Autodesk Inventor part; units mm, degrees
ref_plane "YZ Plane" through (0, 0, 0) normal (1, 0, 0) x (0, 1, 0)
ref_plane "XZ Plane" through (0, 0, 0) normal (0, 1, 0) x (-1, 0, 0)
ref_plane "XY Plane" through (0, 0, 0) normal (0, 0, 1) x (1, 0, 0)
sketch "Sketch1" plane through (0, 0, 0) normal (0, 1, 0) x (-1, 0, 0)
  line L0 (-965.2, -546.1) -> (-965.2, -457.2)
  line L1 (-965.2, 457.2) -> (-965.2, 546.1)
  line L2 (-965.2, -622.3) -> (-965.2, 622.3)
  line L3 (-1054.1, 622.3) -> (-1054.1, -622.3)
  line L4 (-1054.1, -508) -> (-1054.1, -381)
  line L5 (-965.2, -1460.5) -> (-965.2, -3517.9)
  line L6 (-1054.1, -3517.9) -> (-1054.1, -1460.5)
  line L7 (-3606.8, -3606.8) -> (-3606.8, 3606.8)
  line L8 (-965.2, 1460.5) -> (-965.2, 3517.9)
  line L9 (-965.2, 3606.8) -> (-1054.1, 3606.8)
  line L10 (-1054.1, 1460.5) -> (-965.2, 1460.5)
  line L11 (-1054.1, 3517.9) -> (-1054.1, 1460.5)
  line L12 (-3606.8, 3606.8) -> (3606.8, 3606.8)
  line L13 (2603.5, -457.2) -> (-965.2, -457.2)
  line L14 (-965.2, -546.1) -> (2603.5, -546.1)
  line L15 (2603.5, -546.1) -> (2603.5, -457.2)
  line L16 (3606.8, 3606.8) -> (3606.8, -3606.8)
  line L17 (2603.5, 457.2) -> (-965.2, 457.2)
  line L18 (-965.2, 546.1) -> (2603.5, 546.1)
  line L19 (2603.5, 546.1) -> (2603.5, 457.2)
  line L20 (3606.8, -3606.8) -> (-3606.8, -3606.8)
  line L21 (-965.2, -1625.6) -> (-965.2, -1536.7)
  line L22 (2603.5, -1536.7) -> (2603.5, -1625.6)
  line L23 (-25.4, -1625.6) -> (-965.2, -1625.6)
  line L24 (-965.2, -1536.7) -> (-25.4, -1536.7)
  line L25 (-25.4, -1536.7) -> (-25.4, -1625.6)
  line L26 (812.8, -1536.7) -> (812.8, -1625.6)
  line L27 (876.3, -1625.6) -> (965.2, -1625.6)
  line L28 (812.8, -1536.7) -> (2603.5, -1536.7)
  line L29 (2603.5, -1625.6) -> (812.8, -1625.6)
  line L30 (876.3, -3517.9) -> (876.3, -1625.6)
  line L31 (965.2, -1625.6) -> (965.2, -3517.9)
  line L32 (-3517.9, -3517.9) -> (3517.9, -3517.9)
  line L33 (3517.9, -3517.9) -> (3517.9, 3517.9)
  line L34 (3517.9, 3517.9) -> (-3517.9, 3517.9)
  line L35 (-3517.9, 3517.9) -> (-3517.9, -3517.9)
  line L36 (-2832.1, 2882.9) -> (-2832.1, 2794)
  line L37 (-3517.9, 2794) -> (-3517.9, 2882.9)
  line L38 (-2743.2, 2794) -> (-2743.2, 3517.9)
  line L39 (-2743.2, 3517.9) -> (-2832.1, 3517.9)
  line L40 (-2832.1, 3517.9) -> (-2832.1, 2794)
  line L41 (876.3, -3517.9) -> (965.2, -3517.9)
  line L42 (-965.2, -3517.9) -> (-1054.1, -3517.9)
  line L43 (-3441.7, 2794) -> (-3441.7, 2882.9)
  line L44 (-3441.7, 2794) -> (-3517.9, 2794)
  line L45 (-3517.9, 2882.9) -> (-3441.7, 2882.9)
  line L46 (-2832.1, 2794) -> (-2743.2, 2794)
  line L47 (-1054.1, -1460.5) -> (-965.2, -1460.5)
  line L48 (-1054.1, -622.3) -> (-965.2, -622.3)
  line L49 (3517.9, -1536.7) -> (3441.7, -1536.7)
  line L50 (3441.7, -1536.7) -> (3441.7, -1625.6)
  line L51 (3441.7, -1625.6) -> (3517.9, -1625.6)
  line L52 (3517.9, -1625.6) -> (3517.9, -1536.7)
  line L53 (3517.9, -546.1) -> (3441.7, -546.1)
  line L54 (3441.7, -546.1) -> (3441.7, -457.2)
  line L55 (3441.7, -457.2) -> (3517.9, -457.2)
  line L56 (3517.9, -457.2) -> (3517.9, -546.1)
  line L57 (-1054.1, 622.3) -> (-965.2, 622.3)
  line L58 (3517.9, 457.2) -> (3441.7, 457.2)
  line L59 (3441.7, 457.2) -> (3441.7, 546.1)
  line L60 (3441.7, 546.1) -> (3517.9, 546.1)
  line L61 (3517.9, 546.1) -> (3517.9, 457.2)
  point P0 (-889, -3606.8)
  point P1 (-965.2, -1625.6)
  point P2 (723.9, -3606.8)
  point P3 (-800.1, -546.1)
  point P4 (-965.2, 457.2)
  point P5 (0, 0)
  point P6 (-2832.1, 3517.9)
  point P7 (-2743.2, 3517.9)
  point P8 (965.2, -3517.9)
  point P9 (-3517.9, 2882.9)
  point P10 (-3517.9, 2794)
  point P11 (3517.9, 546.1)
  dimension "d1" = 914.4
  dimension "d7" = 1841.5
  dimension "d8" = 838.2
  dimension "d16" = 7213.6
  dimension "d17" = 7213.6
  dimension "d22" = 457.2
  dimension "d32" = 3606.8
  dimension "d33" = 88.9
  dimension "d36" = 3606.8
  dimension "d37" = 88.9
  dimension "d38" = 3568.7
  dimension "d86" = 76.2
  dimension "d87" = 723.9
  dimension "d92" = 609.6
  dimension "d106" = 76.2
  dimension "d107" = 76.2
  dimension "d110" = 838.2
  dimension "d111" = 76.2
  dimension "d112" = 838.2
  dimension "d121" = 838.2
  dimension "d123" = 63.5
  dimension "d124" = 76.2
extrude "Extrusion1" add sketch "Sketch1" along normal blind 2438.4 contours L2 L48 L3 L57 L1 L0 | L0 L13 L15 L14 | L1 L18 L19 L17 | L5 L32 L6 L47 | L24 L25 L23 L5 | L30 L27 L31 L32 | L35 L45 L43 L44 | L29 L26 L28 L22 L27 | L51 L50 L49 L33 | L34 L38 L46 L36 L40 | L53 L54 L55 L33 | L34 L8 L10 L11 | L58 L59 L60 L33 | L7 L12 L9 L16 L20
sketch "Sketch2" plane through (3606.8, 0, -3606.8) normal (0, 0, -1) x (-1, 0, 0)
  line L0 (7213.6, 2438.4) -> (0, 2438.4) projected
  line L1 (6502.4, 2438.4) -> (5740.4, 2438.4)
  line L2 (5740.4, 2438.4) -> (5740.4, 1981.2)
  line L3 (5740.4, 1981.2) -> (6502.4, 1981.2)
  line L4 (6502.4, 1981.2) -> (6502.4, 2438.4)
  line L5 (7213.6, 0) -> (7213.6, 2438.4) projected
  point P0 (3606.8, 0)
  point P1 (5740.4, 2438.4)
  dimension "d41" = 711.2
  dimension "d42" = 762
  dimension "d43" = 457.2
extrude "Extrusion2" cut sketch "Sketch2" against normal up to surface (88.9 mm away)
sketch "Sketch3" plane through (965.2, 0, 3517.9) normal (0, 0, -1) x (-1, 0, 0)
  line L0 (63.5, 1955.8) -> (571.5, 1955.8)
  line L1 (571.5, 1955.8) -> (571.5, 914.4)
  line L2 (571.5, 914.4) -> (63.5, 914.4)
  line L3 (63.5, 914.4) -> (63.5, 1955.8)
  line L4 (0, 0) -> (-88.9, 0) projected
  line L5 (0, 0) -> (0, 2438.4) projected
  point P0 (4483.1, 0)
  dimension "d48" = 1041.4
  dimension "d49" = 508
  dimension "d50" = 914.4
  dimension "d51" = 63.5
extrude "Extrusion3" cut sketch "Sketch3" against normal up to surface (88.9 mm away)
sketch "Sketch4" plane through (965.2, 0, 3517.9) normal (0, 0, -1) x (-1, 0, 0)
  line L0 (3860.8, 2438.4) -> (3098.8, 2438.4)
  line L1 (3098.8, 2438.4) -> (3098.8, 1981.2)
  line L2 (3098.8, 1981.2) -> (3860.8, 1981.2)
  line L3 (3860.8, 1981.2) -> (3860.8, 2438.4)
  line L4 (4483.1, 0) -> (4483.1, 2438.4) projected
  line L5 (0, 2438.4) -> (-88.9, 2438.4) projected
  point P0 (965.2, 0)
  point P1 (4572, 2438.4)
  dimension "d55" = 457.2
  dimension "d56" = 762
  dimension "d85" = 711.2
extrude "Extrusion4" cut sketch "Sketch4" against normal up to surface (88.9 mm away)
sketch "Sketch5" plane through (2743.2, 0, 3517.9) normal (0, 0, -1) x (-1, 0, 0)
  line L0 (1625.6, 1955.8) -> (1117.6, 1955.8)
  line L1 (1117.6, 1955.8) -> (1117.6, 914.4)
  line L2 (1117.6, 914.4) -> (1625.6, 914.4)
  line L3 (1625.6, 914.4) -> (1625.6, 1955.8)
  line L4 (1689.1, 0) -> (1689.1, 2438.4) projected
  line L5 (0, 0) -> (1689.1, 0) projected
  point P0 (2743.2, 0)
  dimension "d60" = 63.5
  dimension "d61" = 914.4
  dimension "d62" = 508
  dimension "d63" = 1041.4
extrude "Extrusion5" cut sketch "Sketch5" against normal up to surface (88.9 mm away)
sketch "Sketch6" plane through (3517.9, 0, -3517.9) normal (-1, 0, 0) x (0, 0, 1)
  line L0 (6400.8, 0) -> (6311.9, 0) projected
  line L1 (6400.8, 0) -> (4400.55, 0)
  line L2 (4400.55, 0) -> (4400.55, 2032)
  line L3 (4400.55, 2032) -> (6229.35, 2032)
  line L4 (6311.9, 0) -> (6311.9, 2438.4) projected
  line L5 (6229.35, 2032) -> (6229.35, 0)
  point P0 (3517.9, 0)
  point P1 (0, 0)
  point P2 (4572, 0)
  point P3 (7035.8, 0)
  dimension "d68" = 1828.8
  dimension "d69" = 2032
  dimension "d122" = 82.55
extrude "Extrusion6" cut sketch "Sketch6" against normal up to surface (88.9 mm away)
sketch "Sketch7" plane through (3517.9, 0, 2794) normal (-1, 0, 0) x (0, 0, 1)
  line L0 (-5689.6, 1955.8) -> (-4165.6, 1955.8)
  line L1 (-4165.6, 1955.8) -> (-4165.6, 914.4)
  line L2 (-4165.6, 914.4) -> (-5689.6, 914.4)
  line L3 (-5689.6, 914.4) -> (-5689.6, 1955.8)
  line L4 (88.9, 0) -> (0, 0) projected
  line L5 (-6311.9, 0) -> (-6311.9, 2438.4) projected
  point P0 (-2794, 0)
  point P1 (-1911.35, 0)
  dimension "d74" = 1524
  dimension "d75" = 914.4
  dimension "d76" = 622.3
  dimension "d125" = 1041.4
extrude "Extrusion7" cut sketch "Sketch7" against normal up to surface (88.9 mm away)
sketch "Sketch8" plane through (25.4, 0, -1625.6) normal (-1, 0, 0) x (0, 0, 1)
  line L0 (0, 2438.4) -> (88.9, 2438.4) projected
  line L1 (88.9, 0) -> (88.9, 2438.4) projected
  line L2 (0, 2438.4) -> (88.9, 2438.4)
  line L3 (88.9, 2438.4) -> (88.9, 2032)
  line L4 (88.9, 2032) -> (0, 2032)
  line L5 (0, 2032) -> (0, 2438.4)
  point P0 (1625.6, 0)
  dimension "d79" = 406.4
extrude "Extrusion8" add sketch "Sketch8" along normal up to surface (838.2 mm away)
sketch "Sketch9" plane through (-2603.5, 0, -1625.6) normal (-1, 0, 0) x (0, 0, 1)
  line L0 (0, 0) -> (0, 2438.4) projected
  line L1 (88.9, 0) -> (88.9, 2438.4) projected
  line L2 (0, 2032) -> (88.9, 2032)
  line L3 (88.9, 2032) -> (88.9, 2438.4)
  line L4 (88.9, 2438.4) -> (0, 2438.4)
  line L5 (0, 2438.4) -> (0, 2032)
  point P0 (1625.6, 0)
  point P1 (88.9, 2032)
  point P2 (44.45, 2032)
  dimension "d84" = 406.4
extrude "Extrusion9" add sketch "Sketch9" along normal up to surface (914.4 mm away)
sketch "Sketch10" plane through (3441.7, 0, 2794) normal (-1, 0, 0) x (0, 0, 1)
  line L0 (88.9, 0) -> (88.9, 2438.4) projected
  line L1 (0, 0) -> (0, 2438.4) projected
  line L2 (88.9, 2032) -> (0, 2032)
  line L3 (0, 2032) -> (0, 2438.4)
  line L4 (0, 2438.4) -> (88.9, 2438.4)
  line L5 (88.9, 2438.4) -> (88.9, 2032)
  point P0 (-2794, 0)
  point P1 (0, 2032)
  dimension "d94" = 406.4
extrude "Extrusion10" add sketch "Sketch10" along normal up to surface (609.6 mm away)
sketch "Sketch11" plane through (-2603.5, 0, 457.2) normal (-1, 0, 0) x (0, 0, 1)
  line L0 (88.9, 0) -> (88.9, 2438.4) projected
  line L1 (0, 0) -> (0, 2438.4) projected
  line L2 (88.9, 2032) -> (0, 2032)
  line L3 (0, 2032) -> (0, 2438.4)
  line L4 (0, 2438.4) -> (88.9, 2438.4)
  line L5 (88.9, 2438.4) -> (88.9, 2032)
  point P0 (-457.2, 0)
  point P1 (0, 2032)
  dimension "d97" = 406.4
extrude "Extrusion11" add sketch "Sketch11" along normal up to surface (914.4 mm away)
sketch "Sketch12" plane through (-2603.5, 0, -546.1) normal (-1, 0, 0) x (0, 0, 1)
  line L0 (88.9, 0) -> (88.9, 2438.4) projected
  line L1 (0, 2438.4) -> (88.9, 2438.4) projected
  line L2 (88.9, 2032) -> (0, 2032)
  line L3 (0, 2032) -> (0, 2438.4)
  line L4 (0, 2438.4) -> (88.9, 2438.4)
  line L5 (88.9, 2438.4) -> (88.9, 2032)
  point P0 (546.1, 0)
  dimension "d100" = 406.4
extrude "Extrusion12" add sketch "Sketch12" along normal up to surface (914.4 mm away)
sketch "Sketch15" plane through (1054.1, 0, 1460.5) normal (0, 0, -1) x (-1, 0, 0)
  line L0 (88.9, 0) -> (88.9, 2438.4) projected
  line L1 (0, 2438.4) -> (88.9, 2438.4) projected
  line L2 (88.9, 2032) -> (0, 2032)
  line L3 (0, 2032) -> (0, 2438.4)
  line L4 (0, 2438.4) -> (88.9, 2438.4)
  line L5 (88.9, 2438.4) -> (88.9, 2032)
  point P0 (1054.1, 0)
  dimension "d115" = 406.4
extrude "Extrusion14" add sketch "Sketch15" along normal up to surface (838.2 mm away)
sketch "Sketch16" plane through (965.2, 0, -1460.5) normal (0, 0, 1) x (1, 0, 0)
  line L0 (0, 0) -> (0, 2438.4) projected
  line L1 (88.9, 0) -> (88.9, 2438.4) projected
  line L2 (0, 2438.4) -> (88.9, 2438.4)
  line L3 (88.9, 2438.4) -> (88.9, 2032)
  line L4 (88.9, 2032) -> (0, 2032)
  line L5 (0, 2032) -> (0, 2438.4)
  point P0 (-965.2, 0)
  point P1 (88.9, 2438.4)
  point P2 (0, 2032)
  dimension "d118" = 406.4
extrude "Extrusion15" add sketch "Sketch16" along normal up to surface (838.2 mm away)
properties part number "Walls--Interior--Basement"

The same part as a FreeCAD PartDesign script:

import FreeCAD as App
import Part
import Sketcher

V = App.Vector
Q = App.Units.Quantity

doc = App.newDocument("Part")
body = doc.addObject("PartDesign::Body", "Body")
body.AllowCompound = True

sketch1 = body.newObject("Sketcher::SketchObject", "Sketch")
sketch1.AttachmentSupport = (doc.getObject("XZ_Plane"), [""])
sketch1.MapMode = "FlatFace"
sketch1.addGeometry(Part.LineSegment(V(965.2, -622.3, 0), V(965.2, -546.1, 0)), False)
sketch1.addGeometry(Part.LineSegment(V(965.2, -546.1, 0), V(-2603.5, -546.1, 0)), False)
sketch1.addGeometry(Part.LineSegment(V(-2603.5, -546.1, 0), V(-2603.5, -457.2, 0)), False)
sketch1.addGeometry(Part.LineSegment(V(-2603.5, -457.2, 0), V(965.2, -457.2, 0)), False)
sketch1.addGeometry(Part.LineSegment(V(965.2, -457.2, 0), V(965.2, 457.2, 0)), False)
sketch1.addGeometry(Part.LineSegment(V(965.2, 457.2, 0), V(-2603.5, 457.2, 0)), False)
sketch1.addGeometry(Part.LineSegment(V(-2603.5, 457.2, 0), V(-2603.5, 546.1, 0)), False)
sketch1.addGeometry(Part.LineSegment(V(-2603.5, 546.1, 0), V(965.2, 546.1, 0)), False)
sketch1.addGeometry(Part.LineSegment(V(965.2, 546.1, 0), V(965.2, 622.3, 0)), False)
sketch1.addGeometry(Part.LineSegment(V(965.2, 622.3, 0), V(1054.1, 622.3, 0)), False)
sketch1.addGeometry(Part.LineSegment(V(1054.1, 622.3, 0), V(1054.1, -622.3, 0)), False)
sketch1.addGeometry(Part.LineSegment(V(1054.1, -622.3, 0), V(965.2, -622.3, 0)), False)
sketch1.addGeometry(Part.LineSegment(V(3606.8, 3606.8, 0), V(3606.8, -3606.8, 0)), False)
sketch1.addGeometry(Part.LineSegment(V(3606.8, -3606.8, 0), V(-3606.8, -3606.8, 0)), False)
sketch1.addGeometry(Part.LineSegment(V(-3606.8, -3606.8, 0), V(-3606.8, 3606.8, 0)), False)
sketch1.addGeometry(Part.LineSegment(V(-3606.8, 3606.8, 0), V(3606.8, 3606.8, 0)), False)
sketch1.addGeometry(Part.LineSegment(V(965.2, -1536.7, 0), V(965.2, -1460.5, 0)), False)
sketch1.addGeometry(Part.LineSegment(V(965.2, -1460.5, 0), V(1054.1, -1460.5, 0)), False)
sketch1.addGeometry(Part.LineSegment(V(1054.1, -1460.5, 0), V(1054.1, -3517.9, 0)), False)
sketch1.addGeometry(Part.LineSegment(V(1054.1, -3517.9, 0), V(3517.9, -3517.9, 0)), False)
sketch1.addGeometry(Part.LineSegment(V(3517.9, -3517.9, 0), V(3517.9, 2794, 0)), False)
sketch1.addGeometry(Part.LineSegment(V(3517.9, 2794, 0), V(3441.7, 2794, 0)), False)
sketch1.addGeometry(Part.LineSegment(V(3441.7, 2794, 0), V(3441.7, 2882.9, 0)), False)
sketch1.addGeometry(Part.LineSegment(V(3441.7, 2882.9, 0), V(3517.9, 2882.9, 0)), False)
sketch1.addGeometry(Part.LineSegment(V(3517.9, 2882.9, 0), V(3517.9, 3517.9, 0)), False)
sketch1.addGeometry(Part.LineSegment(V(3517.9, 3517.9, 0), V(2832.1, 3517.9, 0)), False)
sketch1.addGeometry(Part.LineSegment(V(2832.1, 3517.9, 0), V(2832.1, 2794, 0)), False)
sketch1.addGeometry(Part.LineSegment(V(2832.1, 2794, 0), V(2743.2, 2794, 0)), False)
sketch1.addGeometry(Part.LineSegment(V(2743.2, 2794, 0), V(2743.2, 3517.9, 0)), False)
sketch1.addGeometry(Part.LineSegment(V(2743.2, 3517.9, 0), V(1054.1, 3517.9, 0)), False)
sketch1.addGeometry(Part.LineSegment(V(1054.1, 3517.9, 0), V(1054.1, 1460.5, 0)), False)
sketch1.addGeometry(Part.LineSegment(V(1054.1, 1460.5, 0), V(965.2, 1460.5, 0)), False)
sketch1.addGeometry(Part.LineSegment(V(965.2, 1460.5, 0), V(965.2, 3517.9, 0)), False)
sketch1.addGeometry(Part.LineSegment(V(965.2, 3517.9, 0), V(-3517.9, 3517.9, 0)), False)
sketch1.addGeometry(Part.LineSegment(V(-3517.9, 3517.9, 0), V(-3517.9, 546.1, 0)), False)
sketch1.addGeometry(Part.LineSegment(V(-3517.9, 546.1, 0), V(-3441.7, 546.1, 0)), False)
sketch1.addGeometry(Part.LineSegment(V(-3441.7, 546.1, 0), V(-3441.7, 457.2, 0)), False)
sketch1.addGeometry(Part.LineSegment(V(-3441.7, 457.2, 0), V(-3517.9, 457.2, 0)), False)
sketch1.addGeometry(Part.LineSegment(V(-3517.9, 457.2, 0), V(-3517.9, -457.2, 0)), False)
sketch1.addGeometry(Part.LineSegment(V(-3517.9, -457.2, 0), V(-3441.7, -457.2, 0)), False)
sketch1.addGeometry(Part.LineSegment(V(-3441.7, -457.2, 0), V(-3441.7, -546.1, 0)), False)
sketch1.addGeometry(Part.LineSegment(V(-3441.7, -546.1, 0), V(-3517.9, -546.1, 0)), False)
sketch1.addGeometry(Part.LineSegment(V(-3517.9, -546.1, 0), V(-3517.9, -1536.7, 0)), False)
sketch1.addGeometry(Part.LineSegment(V(-3517.9, -1536.7, 0), V(-3441.7, -1536.7, 0)), False)
sketch1.addGeometry(Part.LineSegment(V(-3441.7, -1536.7, 0), V(-3441.7, -1625.6, 0)), False)
sketch1.addGeometry(Part.LineSegment(V(-3441.7, -1625.6, 0), V(-3517.9, -1625.6, 0)), False)
sketch1.addGeometry(Part.LineSegment(V(-3517.9, -1625.6, 0), V(-3517.9, -3517.9, 0)), False)
sketch1.addGeometry(Part.LineSegment(V(-3517.9, -3517.9, 0), V(-965.2, -3517.9, 0)), False)
sketch1.addGeometry(Part.LineSegment(V(-965.2, -3517.9, 0), V(-965.2, -1625.6, 0)), False)
sketch1.addGeometry(Part.LineSegment(V(-965.2, -1625.6, 0), V(-2603.5, -1625.6, 0)), False)
sketch1.addGeometry(Part.LineSegment(V(-2603.5, -1625.6, 0), V(-2603.5, -1536.7, 0)), False)
sketch1.addGeometry(Part.LineSegment(V(-2603.5, -1536.7, 0), V(-812.8, -1536.7, 0)), False)
sketch1.addGeometry(Part.LineSegment(V(-812.8, -1536.7, 0), V(-812.8, -1625.6, 0)), False)
sketch1.addGeometry(Part.LineSegment(V(-812.8, -1625.6, 0), V(-876.3, -1625.6, 0)), False)
sketch1.addGeometry(Part.LineSegment(V(-876.3, -1625.6, 0), V(-876.3, -3517.9, 0)), False)
sketch1.addGeometry(Part.LineSegment(V(-876.3, -3517.9, 0), V(965.2, -3517.9, 0)), False)
sketch1.addGeometry(Part.LineSegment(V(965.2, -3517.9, 0), V(965.2, -1625.6, 0)), False)
sketch1.addGeometry(Part.LineSegment(V(965.2, -1625.6, 0), V(25.4, -1625.6, 0)), False)
sketch1.addGeometry(Part.LineSegment(V(25.4, -1625.6, 0), V(25.4, -1536.7, 0)), False)
sketch1.addGeometry(Part.LineSegment(V(25.4, -1536.7, 0), V(965.2, -1536.7, 0)), False)
sketch1.addConstraint(Sketcher.Constraint("Coincident", 0, 2, 1, 1))
sketch1.addConstraint(Sketcher.Constraint("Coincident", 1, 2, 2, 1))
sketch1.addConstraint(Sketcher.Constraint("Coincident", 2, 2, 3, 1))
sketch1.addConstraint(Sketcher.Constraint("Coincident", 3, 2, 4, 1))
sketch1.addConstraint(Sketcher.Constraint("Coincident", 4, 2, 5, 1))
sketch1.addConstraint(Sketcher.Constraint("Coincident", 5, 2, 6, 1))
sketch1.addConstraint(Sketcher.Constraint("Coincident", 6, 2, 7, 1))
sketch1.addConstraint(Sketcher.Constraint("Coincident", 7, 2, 8, 1))
sketch1.addConstraint(Sketcher.Constraint("Coincident", 8, 2, 9, 1))
sketch1.addConstraint(Sketcher.Constraint("Coincident", 9, 2, 10, 1))
sketch1.addConstraint(Sketcher.Constraint("Coincident", 10, 2, 11, 1))
sketch1.addConstraint(Sketcher.Constraint("Coincident", 11, 2, 0, 1))
sketch1.addConstraint(Sketcher.Constraint("Coincident", 12, 2, 13, 1))
sketch1.addConstraint(Sketcher.Constraint("Coincident", 13, 2, 14, 1))
sketch1.addConstraint(Sketcher.Constraint("Coincident", 14, 2, 15, 1))
sketch1.addConstraint(Sketcher.Constraint("Coincident", 15, 2, 12, 1))
sketch1.addConstraint(Sketcher.Constraint("Coincident", 16, 2, 17, 1))
sketch1.addConstraint(Sketcher.Constraint("Coincident", 17, 2, 18, 1))
sketch1.addConstraint(Sketcher.Constraint("Coincident", 18, 2, 19, 1))
sketch1.addConstraint(Sketcher.Constraint("Coincident", 19, 2, 20, 1))
sketch1.addConstraint(Sketcher.Constraint("Coincident", 20, 2, 21, 1))
sketch1.addConstraint(Sketcher.Constraint("Coincident", 21, 2, 22, 1))
sketch1.addConstraint(Sketcher.Constraint("Coincident", 22, 2, 23, 1))
sketch1.addConstraint(Sketcher.Constraint("Coincident", 23, 2, 24, 1))
sketch1.addConstraint(Sketcher.Constraint("Coincident", 24, 2, 25, 1))
sketch1.addConstraint(Sketcher.Constraint("Coincident", 25, 2, 26, 1))
sketch1.addConstraint(Sketcher.Constraint("Coincident", 26, 2, 27, 1))
sketch1.addConstraint(Sketcher.Constraint("Coincident", 27, 2, 28, 1))
sketch1.addConstraint(Sketcher.Constraint("Coincident", 28, 2, 29, 1))
sketch1.addConstraint(Sketcher.Constraint("Coincident", 29, 2, 30, 1))
sketch1.addConstraint(Sketcher.Constraint("Coincident", 30, 2, 31, 1))
sketch1.addConstraint(Sketcher.Constraint("Coincident", 31, 2, 32, 1))
sketch1.addConstraint(Sketcher.Constraint("Coincident", 32, 2, 33, 1))
sketch1.addConstraint(Sketcher.Constraint("Coincident", 33, 2, 34, 1))
sketch1.addConstraint(Sketcher.Constraint("Coincident", 34, 2, 35, 1))
sketch1.addConstraint(Sketcher.Constraint("Coincident", 35, 2, 36, 1))
sketch1.addConstraint(Sketcher.Constraint("Coincident", 36, 2, 37, 1))
sketch1.addConstraint(Sketcher.Constraint("Coincident", 37, 2, 38, 1))
sketch1.addConstraint(Sketcher.Constraint("Coincident", 38, 2, 39, 1))
sketch1.addConstraint(Sketcher.Constraint("Coincident", 39, 2, 40, 1))
sketch1.addConstraint(Sketcher.Constraint("Coincident", 40, 2, 41, 1))
sketch1.addConstraint(Sketcher.Constraint("Coincident", 41, 2, 42, 1))
sketch1.addConstraint(Sketcher.Constraint("Coincident", 42, 2, 43, 1))
sketch1.addConstraint(Sketcher.Constraint("Coincident", 43, 2, 44, 1))
sketch1.addConstraint(Sketcher.Constraint("Coincident", 44, 2, 45, 1))
sketch1.addConstraint(Sketcher.Constraint("Coincident", 45, 2, 46, 1))
sketch1.addConstraint(Sketcher.Constraint("Coincident", 46, 2, 47, 1))
sketch1.addConstraint(Sketcher.Constraint("Coincident", 47, 2, 48, 1))
sketch1.addConstraint(Sketcher.Constraint("Coincident", 48, 2, 49, 1))
sketch1.addConstraint(Sketcher.Constraint("Coincident", 49, 2, 50, 1))
sketch1.addConstraint(Sketcher.Constraint("Coincident", 50, 2, 51, 1))
sketch1.addConstraint(Sketcher.Constraint("Coincident", 51, 2, 52, 1))
sketch1.addConstraint(Sketcher.Constraint("Coincident", 52, 2, 53, 1))
sketch1.addConstraint(Sketcher.Constraint("Coincident", 53, 2, 54, 1))
sketch1.addConstraint(Sketcher.Constraint("Coincident", 54, 2, 55, 1))
sketch1.addConstraint(Sketcher.Constraint("Coincident", 55, 2, 56, 1))
sketch1.addConstraint(Sketcher.Constraint("Coincident", 56, 2, 57, 1))
sketch1.addConstraint(Sketcher.Constraint("Coincident", 57, 2, 58, 1))
sketch1.addConstraint(Sketcher.Constraint("Coincident", 58, 2, 59, 1))
sketch1.addConstraint(Sketcher.Constraint("Coincident", 59, 2, 16, 1))
sketch1.addConstraint(Sketcher.Constraint("Vertical", 0))
sketch1.addConstraint(Sketcher.Constraint("Horizontal", 1))
sketch1.addConstraint(Sketcher.Constraint("Vertical", 2))
sketch1.addConstraint(Sketcher.Constraint("Horizontal", 3))
sketch1.addConstraint(Sketcher.Constraint("Vertical", 4))
sketch1.addConstraint(Sketcher.Constraint("Horizontal", 5))
sketch1.addConstraint(Sketcher.Constraint("Vertical", 6))
sketch1.addConstraint(Sketcher.Constraint("Horizontal", 7))
sketch1.addConstraint(Sketcher.Constraint("Vertical", 8))
sketch1.addConstraint(Sketcher.Constraint("Horizontal", 9))
sketch1.addConstraint(Sketcher.Constraint("Vertical", 10))
sketch1.addConstraint(Sketcher.Constraint("Horizontal", 11))
sketch1.addConstraint(Sketcher.Constraint("Vertical", 12))
sketch1.addConstraint(Sketcher.Constraint("Horizontal", 13))
sketch1.addConstraint(Sketcher.Constraint("Vertical", 14))
sketch1.addConstraint(Sketcher.Constraint("Horizontal", 15))
sketch1.addConstraint(Sketcher.Constraint("Vertical", 16))
sketch1.addConstraint(Sketcher.Constraint("Horizontal", 17))
sketch1.addConstraint(Sketcher.Constraint("Vertical", 18))
sketch1.addConstraint(Sketcher.Constraint("Horizontal", 19))
sketch1.addConstraint(Sketcher.Constraint("Vertical", 20))
sketch1.addConstraint(Sketcher.Constraint("Horizontal", 21))
sketch1.addConstraint(Sketcher.Constraint("Vertical", 22))
sketch1.addConstraint(Sketcher.Constraint("Horizontal", 23))
sketch1.addConstraint(Sketcher.Constraint("Vertical", 24))
sketch1.addConstraint(Sketcher.Constraint("Horizontal", 25))
sketch1.addConstraint(Sketcher.Constraint("Vertical", 26))
sketch1.addConstraint(Sketcher.Constraint("Horizontal", 27))
sketch1.addConstraint(Sketcher.Constraint("Vertical", 28))
sketch1.addConstraint(Sketcher.Constraint("Horizontal", 29))
sketch1.addConstraint(Sketcher.Constraint("Vertical", 30))
sketch1.addConstraint(Sketcher.Constraint("Horizontal", 31))
sketch1.addConstraint(Sketcher.Constraint("Vertical", 32))
sketch1.addConstraint(Sketcher.Constraint("Horizontal", 33))
sketch1.addConstraint(Sketcher.Constraint("Vertical", 34))
sketch1.addConstraint(Sketcher.Constraint("Horizontal", 35))
sketch1.addConstraint(Sketcher.Constraint("Vertical", 36))
sketch1.addConstraint(Sketcher.Constraint("Horizontal", 37))
sketch1.addConstraint(Sketcher.Constraint("Vertical", 38))
sketch1.addConstraint(Sketcher.Constraint("Horizontal", 39))
sketch1.addConstraint(Sketcher.Constraint("Vertical", 40))
sketch1.addConstraint(Sketcher.Constraint("Horizontal", 41))
sketch1.addConstraint(Sketcher.Constraint("Vertical", 42))
sketch1.addConstraint(Sketcher.Constraint("Horizontal", 43))
sketch1.addConstraint(Sketcher.Constraint("Vertical", 44))
sketch1.addConstraint(Sketcher.Constraint("Horizontal", 45))
sketch1.addConstraint(Sketcher.Constraint("Vertical", 46))
sketch1.addConstraint(Sketcher.Constraint("Horizontal", 47))
sketch1.addConstraint(Sketcher.Constraint("Vertical", 48))
sketch1.addConstraint(Sketcher.Constraint("Horizontal", 49))
sketch1.addConstraint(Sketcher.Constraint("Vertical", 50))
sketch1.addConstraint(Sketcher.Constraint("Horizontal", 51))
sketch1.addConstraint(Sketcher.Constraint("Vertical", 52))
sketch1.addConstraint(Sketcher.Constraint("Horizontal", 53))
sketch1.addConstraint(Sketcher.Constraint("Vertical", 54))
sketch1.addConstraint(Sketcher.Constraint("Horizontal", 55))
sketch1.addConstraint(Sketcher.Constraint("Vertical", 56))
sketch1.addConstraint(Sketcher.Constraint("Horizontal", 57))
sketch1.addConstraint(Sketcher.Constraint("Vertical", 58))
sketch1.addConstraint(Sketcher.Constraint("Horizontal", 59))
sketch1.addConstraint(Sketcher.Constraint("Symmetric", 12, 2, 14, 2, -1, 1))
sketch1.addConstraint(Sketcher.Constraint("Symmetric", 19, 2, 33, 2, -1, 1))
sketch1.addConstraint(Sketcher.Constraint("Symmetric", 24, 2, 46, 2, -1, 1))
sketch1.addConstraint(Sketcher.Constraint("Symmetric", 32, 2, 47, 2, -1, 1))
sketch1.addConstraint(Sketcher.Constraint("Symmetric", 47, 2, 55, 2, -2))
sketch1.addConstraint(Sketcher.Constraint("Symmetric", 2, 2, 5, 2, -1))
sketch1.addConstraint(Sketcher.Constraint("Symmetric", 0, 2, 7, 2, -1))
sketch1.addConstraint(Sketcher.Constraint("Symmetric", 18, 2, 29, 2, -1))
sketch1.addConstraint(Sketcher.Constraint("Symmetric", 16, 2, 31, 2, -1))
sketch1.addConstraint(Sketcher.Constraint("Symmetric", 36, 2, 39, 2, -1))
sketch1.addConstraint(Sketcher.Constraint("Symmetric", 34, 2, 41, 2, -1))
sketch1.addConstraint(Sketcher.Constraint("Horizontal", 21, 2, 26, 2))
sketch1.addConstraint(Sketcher.Constraint("Horizontal", 7, 2, 34, 2))
sketch1.addConstraint(Sketcher.Constraint("Horizontal", 5, 2, 36, 2))
sketch1.addConstraint(Sketcher.Constraint("Horizontal", 45, 2, 48, 2))
sketch1.addConstraint(Sketcher.Constraint("Horizontal", 43, 2, 50, 2))
sketch1.addConstraint(Sketcher.Constraint("Horizontal", 49, 2, 52, 2))
sketch1.addConstraint(Sketcher.Constraint("Horizontal", 53, 2, 56, 2))
sketch1.addConstraint(Sketcher.Constraint("Horizontal", 51, 2, 58, 2))
sketch1.addConstraint(Sketcher.Constraint("Vertical", 0, 2, 3, 2))
sketch1.addConstraint(Sketcher.Constraint("Vertical", 11, 2, 16, 2))
sketch1.addConstraint(Sketcher.Constraint("Vertical", 10, 2, 17, 2))
sketch1.addConstraint(Sketcher.Constraint("Vertical", 20, 2, 23, 2))
sketch1.addConstraint(Sketcher.Constraint("Vertical", 34, 2, 37, 2))
sketch1.addConstraint(Sketcher.Constraint("Vertical", 40, 2, 43, 2))
sketch1.addConstraint(Sketcher.Constraint("Vertical", 6, 2, 49, 2))
sketch1.addConstraint(Sketcher.Constraint("Equal", 17, 27))
sketch1.addConstraint(Sketcher.Constraint("Equal", 23, 35))
sketch1.addConstraint(Sketcher.Constraint("Equal", 45, 0))
sketch1.addConstraint(Sketcher.Constraint("Equal", 31, 2))
sketch1.addConstraint(Sketcher.Constraint("Equal", 0, 8))
sketch1.addConstraint(Sketcher.Constraint("Equal", 15, 12))
sketch1.addConstraint(Sketcher.Constraint("Equal", 8, 16))
sketch1.addConstraint(Sketcher.Constraint("Equal", 6, 22))
sketch1.addConstraint(Sketcher.Constraint("Equal", 40, 44))
sketch1.addConstraint(Sketcher.Constraint("DistanceX", 13, 2, 13, 1, Q("284 in")))
sketch1.addConstraint(Sketcher.Constraint("DistanceX", 21, 2, 21, 1, Q("3 in")))
sketch1.addConstraint(Sketcher.Constraint("DistanceY", 4, 1, 4, 2, Q("36 in")))
sketch1.addConstraint(Sketcher.Constraint("DistanceX", 1, 2, 1, 1, Q("140.5 in")))
sketch1.addConstraint(Sketcher.Constraint("DistanceX", 9, 1, 9, 2, Q("3.5 in")))
sketch1.addConstraint(Sketcher.Constraint("DistanceX", 53, 2, 53, 1, Q("2.5 in")))
sketch1.addConstraint(Sketcher.Constraint("DistanceX", 55, 1, 55, 2, Q("72.5 in")))
sketch1.addConstraint(Sketcher.Constraint("DistanceY", 26, 2, 26, 1, Q("28.5 in")))
sketch1.addConstraint(Sketcher.Constraint("DistanceY", 16, 2, 11, 2, Q("33 in")))
sketch1.addConstraint(Sketcher.Constraint("DistanceX", 25, 2, 22, 2, Q("24 in")))
sketch1.addConstraint(Sketcher.Constraint("DistanceX", 33, 2, 6, 2, Q("36 in")))
sketch1.addConstraint(Sketcher.Constraint("DistanceX", 52, 2, 57, 2, Q("33 in")))
sketch1.addConstraint(Sketcher.Constraint("DistanceY", 12, 2, 18, 2, Q("3.5 in")))
sketch1.addConstraint(Sketcher.Constraint("DistanceX", 19, 2, 12, 2, Q("3.5 in")))
pad1 = body.newObject("PartDesign::Pad", "Pad")
pad1.Profile = sketch1
pad1.Length = Q("96 in")
pad1.Reversed = True

sketch2 = body.newObject("Sketcher::SketchObject", "Sketch001")
sketch2.AttachmentSupport = (doc.getObject("XY_Plane"), [""])
sketch2.MapMode = "FlatFace"
sketch2.AttachmentOffset = App.Placement(V(0, 0, -142 * 25.4), App.Rotation())
sketch2.addGeometry(Part.LineSegment(V(-2895.6, 1981.2, 0), V(-2895.6, 2438.4, 0)), False)
sketch2.addGeometry(Part.LineSegment(V(-2895.6, 2438.4, 0), V(-2133.6, 2438.4, 0)), False)
sketch2.addGeometry(Part.LineSegment(V(-2133.6, 2438.4, 0), V(-2133.6, 1981.2, 0)), False)
sketch2.addGeometry(Part.LineSegment(V(-2133.6, 1981.2, 0), V(-2895.6, 1981.2, 0)), False)
sketch2.addConstraint(Sketcher.Constraint("Coincident", 0, 2, 1, 1))
sketch2.addConstraint(Sketcher.Constraint("Coincident", 1, 2, 2, 1))
sketch2.addConstraint(Sketcher.Constraint("Coincident", 2, 2, 3, 1))
sketch2.addConstraint(Sketcher.Constraint("Coincident", 3, 2, 0, 1))
sketch2.addConstraint(Sketcher.Constraint("Vertical", 0))
sketch2.addConstraint(Sketcher.Constraint("Horizontal", 1))
sketch2.addConstraint(Sketcher.Constraint("Vertical", 2))
sketch2.addConstraint(Sketcher.Constraint("Horizontal", 3))
sketch2.addConstraint(Sketcher.Constraint("DistanceX", 1, 1, 1, 2, Q("30 in")))
sketch2.addConstraint(Sketcher.Constraint("DistanceY", 0, 1, 0, 2, Q("18 in")))
sketch2.addConstraint(Sketcher.Constraint("DistanceX", 0, 2, -1, 1, Q("114 in")))
sketch2.addConstraint(Sketcher.Constraint("DistanceY", -1, 1, 0, 2, Q("96 in")))
pocket1 = body.newObject("PartDesign::Pocket", "Pocket")
pocket1.Profile = sketch2
pocket1.Length = Q("3.5 in")
pocket1.Reversed = True

sketch3 = body.newObject("Sketcher::SketchObject", "Sketch002")
sketch3.AttachmentSupport = (doc.getObject("XY_Plane"), [""])
sketch3.MapMode = "FlatFace"
sketch3.AttachmentOffset = App.Placement(V(0, 0, 138.5 * 25.4), App.Rotation())
sketch3.addGeometry(Part.LineSegment(V(393.7, 1955.8, 0), V(901.7, 1955.8, 0)), False)
sketch3.addGeometry(Part.LineSegment(V(901.7, 1955.8, 0), V(901.7, 914.4, 0)), False)
sketch3.addGeometry(Part.LineSegment(V(901.7, 914.4, 0), V(393.7, 914.4, 0)), False)
sketch3.addGeometry(Part.LineSegment(V(393.7, 914.4, 0), V(393.7, 1955.8, 0)), False)
sketch3.addConstraint(Sketcher.Constraint("Coincident", 0, 2, 1, 1))
sketch3.addConstraint(Sketcher.Constraint("Coincident", 1, 2, 2, 1))
sketch3.addConstraint(Sketcher.Constraint("Coincident", 2, 2, 3, 1))
sketch3.addConstraint(Sketcher.Constraint("Coincident", 3, 2, 0, 1))
sketch3.addConstraint(Sketcher.Constraint("Horizontal", 0))
sketch3.addConstraint(Sketcher.Constraint("Vertical", 1))
sketch3.addConstraint(Sketcher.Constraint("Horizontal", 2))
sketch3.addConstraint(Sketcher.Constraint("Vertical", 3))
sketch3.addConstraint(Sketcher.Constraint("DistanceX", 0, 1, 0, 2, Q("20 in")))
sketch3.addConstraint(Sketcher.Constraint("DistanceY", 1, 2, 1, 1, Q("41 in")))
sketch3.addConstraint(Sketcher.Constraint("DistanceY", -1, 1, 1, 2, Q("36 in")))
sketch3.addConstraint(Sketcher.Constraint("DistanceX", -1, 1, 0, 2, Q("35.5 in")))
pocket2 = body.newObject("PartDesign::Pocket", "Pocket001")
pocket2.Profile = sketch3
pocket2.Length = Q("3.5 in")
pocket2.Reversed = True

sketch4 = body.newObject("Sketcher::SketchObject", "Sketch003")
sketch4.AttachmentSupport = (doc.getObject("XY_Plane"), [""])
sketch4.MapMode = "FlatFace"
sketch4.AttachmentOffset = App.Placement(V(0, 0, 138.5 * 25.4), App.Rotation())
sketch4.addGeometry(Part.LineSegment(V(-2895.6, 1981.2, 0), V(-2895.6, 2438.4, 0)), False)
sketch4.addGeometry(Part.LineSegment(V(-2895.6, 2438.4, 0), V(-2133.6, 2438.4, 0)), False)
sketch4.addGeometry(Part.LineSegment(V(-2133.6, 2438.4, 0), V(-2133.6, 1981.2, 0)), False)
sketch4.addGeometry(Part.LineSegment(V(-2133.6, 1981.2, 0), V(-2895.6, 1981.2, 0)), False)
sketch4.addConstraint(Sketcher.Constraint("Coincident", 0, 2, 1, 1))
sketch4.addConstraint(Sketcher.Constraint("Coincident", 1, 2, 2, 1))
sketch4.addConstraint(Sketcher.Constraint("Coincident", 2, 2, 3, 1))
sketch4.addConstraint(Sketcher.Constraint("Coincident", 3, 2, 0, 1))
sketch4.addConstraint(Sketcher.Constraint("Vertical", 0))
sketch4.addConstraint(Sketcher.Constraint("Horizontal", 1))
sketch4.addConstraint(Sketcher.Constraint("Vertical", 2))
sketch4.addConstraint(Sketcher.Constraint("Horizontal", 3))
sketch4.addConstraint(Sketcher.Constraint("DistanceX", 1, 1, 1, 2, Q("30 in")))
sketch4.addConstraint(Sketcher.Constraint("DistanceY", 0, 1, 0, 2, Q("18 in")))
sketch4.addConstraint(Sketcher.Constraint("DistanceX", 0, 2, -1, 1, Q("114 in")))
sketch4.addConstraint(Sketcher.Constraint("DistanceY", -1, 1, 0, 2, Q("96 in")))
pocket3 = body.newObject("PartDesign::Pocket", "Pocket002")
pocket3.Profile = sketch4
pocket3.Length = Q("3.5 in")
pocket3.Reversed = True

sketch5 = body.newObject("Sketcher::SketchObject", "Sketch004")
sketch5.AttachmentSupport = (doc.getObject("XY_Plane"), [""])
sketch5.MapMode = "FlatFace"
sketch5.AttachmentOffset = App.Placement(V(0, 0, 138.5 * 25.4), App.Rotation())
sketch5.addGeometry(Part.LineSegment(V(1117.6, 914.4, 0), V(1117.6, 1955.8, 0)), False)
sketch5.addGeometry(Part.LineSegment(V(1117.6, 1955.8, 0), V(1625.6, 1955.8, 0)), False)
sketch5.addGeometry(Part.LineSegment(V(1625.6, 1955.8, 0), V(1625.6, 914.4, 0)), False)
sketch5.addGeometry(Part.LineSegment(V(1625.6, 914.4, 0), V(1117.6, 914.4, 0)), False)
sketch5.addConstraint(Sketcher.Constraint("Coincident", 0, 2, 1, 1))
sketch5.addConstraint(Sketcher.Constraint("Coincident", 1, 2, 2, 1))
sketch5.addConstraint(Sketcher.Constraint("Coincident", 2, 2, 3, 1))
sketch5.addConstraint(Sketcher.Constraint("Coincident", 3, 2, 0, 1))
sketch5.addConstraint(Sketcher.Constraint("Vertical", 0))
sketch5.addConstraint(Sketcher.Constraint("Horizontal", 1))
sketch5.addConstraint(Sketcher.Constraint("Vertical", 2))
sketch5.addConstraint(Sketcher.Constraint("Horizontal", 3))
sketch5.addConstraint(Sketcher.Constraint("DistanceX", 1, 1, 1, 2, Q("20 in")))
sketch5.addConstraint(Sketcher.Constraint("DistanceY", 0, 1, 0, 2, Q("41 in")))
sketch5.addConstraint(Sketcher.Constraint("DistanceY", -1, 1, 2, 2, Q("36 in")))
sketch5.addConstraint(Sketcher.Constraint("DistanceX", -1, 1, 0, 2, Q("44 in")))
pocket4 = body.newObject("PartDesign::Pocket", "Pocket003")
pocket4.Profile = sketch5
pocket4.Length = Q("3.5 in")
pocket4.Reversed = True

sketch6 = body.newObject("Sketcher::SketchObject", "Sketch005")
sketch6.AttachmentSupport = (doc.getObject("YZ_Plane"), [""])
sketch6.MapMode = "FlatFace"
sketch6.AttachmentOffset = App.Placement(V(0, 0, 138.5 * 25.4), App.Rotation())
sketch6.addGeometry(Part.LineSegment(V(0, 882.65, 0), V(0, 2711.45, 0)), False)
sketch6.addGeometry(Part.LineSegment(V(0, 2711.45, 0), V(2032, 2711.45, 0)), False)
sketch6.addGeometry(Part.LineSegment(V(2032, 2711.45, 0), V(2032, 882.65, 0)), False)
sketch6.addGeometry(Part.LineSegment(V(2032, 882.65, 0), V(0, 882.65, 0)), False)
sketch6.addConstraint(Sketcher.Constraint("Coincident", 0, 2, 1, 1))
sketch6.addConstraint(Sketcher.Constraint("Coincident", 1, 2, 2, 1))
sketch6.addConstraint(Sketcher.Constraint("Coincident", 2, 2, 3, 1))
sketch6.addConstraint(Sketcher.Constraint("Coincident", 3, 2, 0, 1))
sketch6.addConstraint(Sketcher.Constraint("Vertical", 0))
sketch6.addConstraint(Sketcher.Constraint("Horizontal", 1))
sketch6.addConstraint(Sketcher.Constraint("Vertical", 2))
sketch6.addConstraint(Sketcher.Constraint("Horizontal", 3))
sketch6.addConstraint(Sketcher.Constraint("PointOnObject", 0, 2, -2))
sketch6.addConstraint(Sketcher.Constraint("DistanceX", 1, 1, 1, 2, Q("80 in")))
sketch6.addConstraint(Sketcher.Constraint("DistanceY", 0, 1, 0, 2, Q("72 in")))
sketch6.addConstraint(Sketcher.Constraint("DistanceY", -1, 1, 0, 2, Q("106.75 in")))
pocket5 = body.newObject("PartDesign::Pocket", "Pocket004")
pocket5.Profile = sketch6
pocket5.Length = Q("3.5 in")
pocket5.Reversed = True

sketch7 = body.newObject("Sketcher::SketchObject", "Sketch006")
sketch7.AttachmentSupport = (doc.getObject("YZ_Plane"), [""])
sketch7.MapMode = "FlatFace"
sketch7.AttachmentOffset = App.Placement(V(0, 0, 138.5 * 25.4), App.Rotation())
sketch7.addGeometry(Part.LineSegment(V(1955.8, -1371.6, 0), V(1955.8, -2895.6, 0)), False)
sketch7.addGeometry(Part.LineSegment(V(1955.8, -2895.6, 0), V(914.4, -2895.6, 0)), False)
sketch7.addGeometry(Part.LineSegment(V(914.4, -2895.6, 0), V(914.4, -1371.6, 0)), False)
sketch7.addGeometry(Part.LineSegment(V(914.4, -1371.6, 0), V(1955.8, -1371.6, 0)), False)
sketch7.addConstraint(Sketcher.Constraint("Coincident", 0, 2, 1, 1))
sketch7.addConstraint(Sketcher.Constraint("Coincident", 1, 2, 2, 1))
sketch7.addConstraint(Sketcher.Constraint("Coincident", 2, 2, 3, 1))
sketch7.addConstraint(Sketcher.Constraint("Coincident", 3, 2, 0, 1))
sketch7.addConstraint(Sketcher.Constraint("Vertical", 0))
sketch7.addConstraint(Sketcher.Constraint("Horizontal", 1))
sketch7.addConstraint(Sketcher.Constraint("Vertical", 2))
sketch7.addConstraint(Sketcher.Constraint("Horizontal", 3))
sketch7.addConstraint(Sketcher.Constraint("DistanceX", 1, 2, 1, 1, Q("41 in")))
sketch7.addConstraint(Sketcher.Constraint("DistanceY", 0, 2, 0, 1, Q("60 in")))
sketch7.addConstraint(Sketcher.Constraint("DistanceX", -1, 1, 1, 2, Q("36 in")))
sketch7.addConstraint(Sketcher.Constraint("DistanceY", 0, 2, -1, 1, Q("114 in")))
pocket6 = body.newObject("PartDesign::Pocket", "Pocket005")
pocket6.Profile = sketch7
pocket6.Length = Q("3.5 in")
pocket6.Reversed = True

sketch8 = body.newObject("Sketcher::SketchObject", "Sketch007")
sketch8.AttachmentSupport = (doc.getObject("YZ_Plane"), [""])
sketch8.MapMode = "FlatFace"
sketch8.AttachmentOffset = App.Placement(V(0, 0, 1 * 25.4), App.Rotation())
sketch8.addGeometry(Part.LineSegment(V(2438.4, -1536.7, 0), V(2438.4, -1625.6, 0)), False)
sketch8.addGeometry(Part.LineSegment(V(2438.4, -1625.6, 0), V(2032, -1625.6, 0)), False)
sketch8.addGeometry(Part.LineSegment(V(2032, -1625.6, 0), V(2032, -1536.7, 0)), False)
sketch8.addGeometry(Part.LineSegment(V(2032, -1536.7, 0), V(2438.4, -1536.7, 0)), False)
sketch8.addConstraint(Sketcher.Constraint("Coincident", 0, 2, 1, 1))
sketch8.addConstraint(Sketcher.Constraint("Coincident", 1, 2, 2, 1))
sketch8.addConstraint(Sketcher.Constraint("Coincident", 2, 2, 3, 1))
sketch8.addConstraint(Sketcher.Constraint("Coincident", 3, 2, 0, 1))
sketch8.addConstraint(Sketcher.Constraint("Vertical", 0))
sketch8.addConstraint(Sketcher.Constraint("Horizontal", 1))
sketch8.addConstraint(Sketcher.Constraint("Vertical", 2))
sketch8.addConstraint(Sketcher.Constraint("Horizontal", 3))
sketch8.addConstraint(Sketcher.Constraint("DistanceX", 1, 2, 1, 1, Q("16 in")))
sketch8.addConstraint(Sketcher.Constraint("DistanceY", 0, 2, 0, 1, Q("3.5 in")))
sketch8.addConstraint(Sketcher.Constraint("DistanceX", -1, 1, 0, 2, Q("96 in")))
sketch8.addConstraint(Sketcher.Constraint("DistanceY", 0, 2, -1, 1, Q("64 in")))
pad2 = body.newObject("PartDesign::Pad", "Pad001")
pad2.Profile = sketch8
pad2.Length = Q("33 in")
pad2.Reversed = True

sketch9 = body.newObject("Sketcher::SketchObject", "Sketch008")
sketch9.AttachmentSupport = (doc.getObject("YZ_Plane"), [""])
sketch9.MapMode = "FlatFace"
sketch9.AttachmentOffset = App.Placement(V(0, 0, -102.5 * 25.4), App.Rotation())
sketch9.addGeometry(Part.LineSegment(V(2438.4, -1625.6, 0), V(2032, -1625.6, 0)), False)
sketch9.addGeometry(Part.LineSegment(V(2032, -1625.6, 0), V(2032, -1536.7, 0)), False)
sketch9.addGeometry(Part.LineSegment(V(2032, -1536.7, 0), V(2438.4, -1536.7, 0)), False)
sketch9.addGeometry(Part.LineSegment(V(2438.4, -1536.7, 0), V(2438.4, -1625.6, 0)), False)
sketch9.addConstraint(Sketcher.Constraint("Coincident", 0, 2, 1, 1))
sketch9.addConstraint(Sketcher.Constraint("Coincident", 1, 2, 2, 1))
sketch9.addConstraint(Sketcher.Constraint("Coincident", 2, 2, 3, 1))
sketch9.addConstraint(Sketcher.Constraint("Coincident", 3, 2, 0, 1))
sketch9.addConstraint(Sketcher.Constraint("Horizontal", 0))
sketch9.addConstraint(Sketcher.Constraint("Vertical", 1))
sketch9.addConstraint(Sketcher.Constraint("Horizontal", 2))
sketch9.addConstraint(Sketcher.Constraint("Vertical", 3))
sketch9.addConstraint(Sketcher.Constraint("DistanceX", 0, 2, 0, 1, Q("16 in")))
sketch9.addConstraint(Sketcher.Constraint("DistanceY", 1, 1, 1, 2, Q("3.5 in")))
sketch9.addConstraint(Sketcher.Constraint("DistanceX", -1, 1, 0, 2, Q("80 in")))
sketch9.addConstraint(Sketcher.Constraint("DistanceY", 0, 2, -1, 1, Q("64 in")))
pad3 = body.newObject("PartDesign::Pad", "Pad002")
pad3.Profile = sketch9
pad3.Length = Q("36 in")
pad3.Reversed = True

sketch10 = body.newObject("Sketcher::SketchObject", "Sketch009")
sketch10.AttachmentSupport = (doc.getObject("YZ_Plane"), [""])
sketch10.MapMode = "FlatFace"
sketch10.AttachmentOffset = App.Placement(V(0, 0, 135.5 * 25.4), App.Rotation())
sketch10.addGeometry(Part.LineSegment(V(2032, 2794, 0), V(2032, 2882.9, 0)), False)
sketch10.addGeometry(Part.LineSegment(V(2032, 2882.9, 0), V(2438.4, 2882.9, 0)), False)
sketch10.addGeometry(Part.LineSegment(V(2438.4, 2882.9, 0), V(2438.4, 2794, 0)), False)
sketch10.addGeometry(Part.LineSegment(V(2438.4, 2794, 0), V(2032, 2794, 0)), False)
sketch10.addConstraint(Sketcher.Constraint("Coincident", 0, 2, 1, 1))
sketch10.addConstraint(Sketcher.Constraint("Coincident", 1, 2, 2, 1))
sketch10.addConstraint(Sketcher.Constraint("Coincident", 2, 2, 3, 1))
sketch10.addConstraint(Sketcher.Constraint("Coincident", 3, 2, 0, 1))
sketch10.addConstraint(Sketcher.Constraint("Vertical", 0))
sketch10.addConstraint(Sketcher.Constraint("Horizontal", 1))
sketch10.addConstraint(Sketcher.Constraint("Vertical", 2))
sketch10.addConstraint(Sketcher.Constraint("Horizontal", 3))
sketch10.addConstraint(Sketcher.Constraint("DistanceX", 1, 1, 1, 2, Q("16 in")))
sketch10.addConstraint(Sketcher.Constraint("DistanceY", 0, 1, 0, 2, Q("3.5 in")))
sketch10.addConstraint(Sketcher.Constraint("DistanceX", -1, 1, 0, 2, Q("80 in")))
sketch10.addConstraint(Sketcher.Constraint("DistanceY", -1, 1, 2, 2, Q("110 in")))
pad4 = body.newObject("PartDesign::Pad", "Pad003")
pad4.Profile = sketch10
pad4.Length = Q("24 in")
pad4.Reversed = True

sketch11 = body.newObject("Sketcher::SketchObject", "Sketch010")
sketch11.AttachmentSupport = (doc.getObject("YZ_Plane"), [""])
sketch11.MapMode = "FlatFace"
sketch11.AttachmentOffset = App.Placement(V(0, 0, -102.5 * 25.4), App.Rotation())
sketch11.addGeometry(Part.LineSegment(V(2032, 457.2, 0), V(2032, 546.1, 0)), False)
sketch11.addGeometry(Part.LineSegment(V(2032, 546.1, 0), V(2438.4, 546.1, 0)), False)
sketch11.addGeometry(Part.LineSegment(V(2438.4, 546.1, 0), V(2438.4, 457.2, 0)), False)
sketch11.addGeometry(Part.LineSegment(V(2438.4, 457.2, 0), V(2032, 457.2, 0)), False)
sketch11.addConstraint(Sketcher.Constraint("Coincident", 0, 2, 1, 1))
sketch11.addConstraint(Sketcher.Constraint("Coincident", 1, 2, 2, 1))
sketch11.addConstraint(Sketcher.Constraint("Coincident", 2, 2, 3, 1))
sketch11.addConstraint(Sketcher.Constraint("Coincident", 3, 2, 0, 1))
sketch11.addConstraint(Sketcher.Constraint("Vertical", 0))
sketch11.addConstraint(Sketcher.Constraint("Horizontal", 1))
sketch11.addConstraint(Sketcher.Constraint("Vertical", 2))
sketch11.addConstraint(Sketcher.Constraint("Horizontal", 3))
sketch11.addConstraint(Sketcher.Constraint("DistanceX", 1, 1, 1, 2, Q("16 in")))
sketch11.addConstraint(Sketcher.Constraint("DistanceY", 0, 1, 0, 2, Q("3.5 in")))
sketch11.addConstraint(Sketcher.Constraint("DistanceX", -1, 1, 0, 2, Q("80 in")))
sketch11.addConstraint(Sketcher.Constraint("DistanceY", -1, 1, 2, 2, Q("18 in")))
pad5 = body.newObject("PartDesign::Pad", "Pad004")
pad5.Profile = sketch11
pad5.Length = Q("36 in")
pad5.Reversed = True

sketch12 = body.newObject("Sketcher::SketchObject", "Sketch011")
sketch12.AttachmentSupport = (doc.getObject("YZ_Plane"), [""])
sketch12.MapMode = "FlatFace"
sketch12.AttachmentOffset = App.Placement(V(0, 0, -102.5 * 25.4), App.Rotation())
sketch12.addGeometry(Part.LineSegment(V(2032, -546.1, 0), V(2032, -457.2, 0)), False)
sketch12.addGeometry(Part.LineSegment(V(2032, -457.2, 0), V(2438.4, -457.2, 0)), False)
sketch12.addGeometry(Part.LineSegment(V(2438.4, -457.2, 0), V(2438.4, -546.1, 0)), False)
sketch12.addGeometry(Part.LineSegment(V(2438.4, -546.1, 0), V(2032, -546.1, 0)), False)
sketch12.addConstraint(Sketcher.Constraint("Coincident", 0, 2, 1, 1))
sketch12.addConstraint(Sketcher.Constraint("Coincident", 1, 2, 2, 1))
sketch12.addConstraint(Sketcher.Constraint("Coincident", 2, 2, 3, 1))
sketch12.addConstraint(Sketcher.Constraint("Coincident", 3, 2, 0, 1))
sketch12.addConstraint(Sketcher.Constraint("Vertical", 0))
sketch12.addConstraint(Sketcher.Constraint("Horizontal", 1))
sketch12.addConstraint(Sketcher.Constraint("Vertical", 2))
sketch12.addConstraint(Sketcher.Constraint("Horizontal", 3))
sketch12.addConstraint(Sketcher.Constraint("DistanceX", 1, 1, 1, 2, Q("16 in")))
sketch12.addConstraint(Sketcher.Constraint("DistanceY", 0, 1, 0, 2, Q("3.5 in")))
sketch12.addConstraint(Sketcher.Constraint("DistanceX", -1, 1, 0, 2, Q("80 in")))
sketch12.addConstraint(Sketcher.Constraint("DistanceY", 0, 2, -1, 1, Q("18 in")))
pad6 = body.newObject("PartDesign::Pad", "Pad005")
pad6.Profile = sketch12
pad6.Length = Q("36 in")
pad6.Reversed = True

sketch13 = body.newObject("Sketcher::SketchObject", "Sketch012")
sketch13.AttachmentSupport = (doc.getObject("XY_Plane"), [""])
sketch13.MapMode = "FlatFace"
sketch13.AttachmentOffset = App.Placement(V(0, 0, 57.5 * 25.4), App.Rotation())
sketch13.addGeometry(Part.LineSegment(V(1054.1, 2032, 0), V(965.2, 2032, 0)), False)
sketch13.addGeometry(Part.LineSegment(V(965.2, 2032, 0), V(965.2, 2438.4, 0)), False)
sketch13.addGeometry(Part.LineSegment(V(965.2, 2438.4, 0), V(1054.1, 2438.4, 0)), False)
sketch13.addGeometry(Part.LineSegment(V(1054.1, 2438.4, 0), V(1054.1, 2032, 0)), False)
sketch13.addConstraint(Sketcher.Constraint("Coincident", 0, 2, 1, 1))
sketch13.addConstraint(Sketcher.Constraint("Coincident", 1, 2, 2, 1))
sketch13.addConstraint(Sketcher.Constraint("Coincident", 2, 2, 3, 1))
sketch13.addConstraint(Sketcher.Constraint("Coincident", 3, 2, 0, 1))
sketch13.addConstraint(Sketcher.Constraint("Horizontal", 0))
sketch13.addConstraint(Sketcher.Constraint("Vertical", 1))
sketch13.addConstraint(Sketcher.Constraint("Horizontal", 2))
sketch13.addConstraint(Sketcher.Constraint("Vertical", 3))
sketch13.addConstraint(Sketcher.Constraint("DistanceY", 1, 1, 1, 2, Q("16 in")))
sketch13.addConstraint(Sketcher.Constraint("DistanceX", 0, 2, 0, 1, Q("3.5 in")))
sketch13.addConstraint(Sketcher.Constraint("DistanceX", -1, 1, 0, 2, Q("38 in")))
sketch13.addConstraint(Sketcher.Constraint("DistanceY", -1, 1, 0, 2, Q("80 in")))
pad7 = body.newObject("PartDesign::Pad", "Pad006")
pad7.Profile = sketch13
pad7.Length = Q("33 in")
pad7.Reversed = True

sketch14 = body.newObject("Sketcher::SketchObject", "Sketch013")
sketch14.AttachmentSupport = (doc.getObject("XY_Plane"), [""])
sketch14.MapMode = "FlatFace"
sketch14.AttachmentOffset = App.Placement(V(0, 0, -57.5 * 25.4), App.Rotation())
sketch14.addGeometry(Part.LineSegment(V(965.2, 2438.4, 0), V(965.2, 2032, 0)), False)
sketch14.addGeometry(Part.LineSegment(V(965.2, 2032, 0), V(1054.1, 2032, 0)), False)
sketch14.addGeometry(Part.LineSegment(V(1054.1, 2032, 0), V(1054.1, 2438.4, 0)), False)
sketch14.addGeometry(Part.LineSegment(V(1054.1, 2438.4, 0), V(965.2, 2438.4, 0)), False)
sketch14.addConstraint(Sketcher.Constraint("Coincident", 0, 2, 1, 1))
sketch14.addConstraint(Sketcher.Constraint("Coincident", 1, 2, 2, 1))
sketch14.addConstraint(Sketcher.Constraint("Coincident", 2, 2, 3, 1))
sketch14.addConstraint(Sketcher.Constraint("Coincident", 3, 2, 0, 1))
sketch14.addConstraint(Sketcher.Constraint("Vertical", 0))
sketch14.addConstraint(Sketcher.Constraint("Horizontal", 1))
sketch14.addConstraint(Sketcher.Constraint("Vertical", 2))
sketch14.addConstraint(Sketcher.Constraint("Horizontal", 3))
sketch14.addConstraint(Sketcher.Constraint("DistanceY", 0, 2, 0, 1, Q("16 in")))
sketch14.addConstraint(Sketcher.Constraint("DistanceX", 1, 1, 1, 2, Q("3.5 in")))
sketch14.addConstraint(Sketcher.Constraint("DistanceX", -1, 1, 0, 2, Q("38 in")))
sketch14.addConstraint(Sketcher.Constraint("DistanceY", -1, 1, 0, 2, Q("80 in")))
pad8 = body.newObject("PartDesign::Pad", "Pad007")
pad8.Profile = sketch14
pad8.Length = Q("33 in")

doc.recompute()
